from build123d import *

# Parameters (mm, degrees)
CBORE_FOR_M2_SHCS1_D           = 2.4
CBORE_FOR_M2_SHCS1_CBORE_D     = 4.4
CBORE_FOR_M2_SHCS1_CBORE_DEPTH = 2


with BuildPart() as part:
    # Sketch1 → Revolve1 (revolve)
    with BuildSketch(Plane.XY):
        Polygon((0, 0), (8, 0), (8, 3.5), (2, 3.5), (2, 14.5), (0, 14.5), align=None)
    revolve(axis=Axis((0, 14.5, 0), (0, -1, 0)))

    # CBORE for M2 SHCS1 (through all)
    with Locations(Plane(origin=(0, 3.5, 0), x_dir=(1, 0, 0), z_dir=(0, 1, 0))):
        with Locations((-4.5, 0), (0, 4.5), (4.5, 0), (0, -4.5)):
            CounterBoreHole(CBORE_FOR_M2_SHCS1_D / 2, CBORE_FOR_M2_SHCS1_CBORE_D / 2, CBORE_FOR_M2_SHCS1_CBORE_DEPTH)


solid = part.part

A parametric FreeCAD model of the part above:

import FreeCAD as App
import Part
import Sketcher


def add_polygon(sketch, points):
    """Adds a closed chain of lines whose ends are joined by coincident constraints."""
    first, n = sketch.GeometryCount, len(points)
    for a, b in zip(points, points[1:] + points[:1]):
        sketch.addGeometry(Part.LineSegment(App.Vector(*a, 0), App.Vector(*b, 0)), False)
    for i in range(n):
        sketch.addConstraint(Sketcher.Constraint("Coincident", first + i, 2, first + (i + 1) % n, 1))

doc = App.newDocument("Part")
params = doc.addObject("Spreadsheet::Sheet", "Params")
for row, (alias, value) in enumerate([
    ("sketch1_width", "8 mm"),
    ("sketch1_width2", "6 mm"),
    ("sketch1_height", "11 mm"),
    ("sketch1_height2", "3.5 mm"),
    ("revolution_angle", "360 deg"),
    ("sketch2_diameter", "2.4 mm"),
    ("hole_diameter", "2.4 mm"),
    ("hole_cbore_diameter", "4.4 mm"),
    ("hole_cbore_depth", "2 mm"),
], start=1):
    params.set(f"A{row}", alias)
    params.set(f"B{row}", "=" + value)
    params.setAlias(f"B{row}", alias)

body = doc.addObject("PartDesign::Body", "Body")

# Sketch on XY plane
sketch1 = body.newObject("Sketcher::SketchObject", "Sketch")
sketch1.AttachmentSupport = (doc.getObject("XY_Plane"), [""])
sketch1.MapMode = "FlatFace"
add_polygon(sketch1, [(0, 0), (8, 0), (8, 3.5), (2, 3.5), (2, 14.5), (0, 14.5)])  # lines 0-5
sketch1.addConstraint([
    Sketcher.Constraint("Horizontal", 0),
    Sketcher.Constraint("Vertical", 1),
    Sketcher.Constraint("Horizontal", 2),
    Sketcher.Constraint("Vertical", 3),
    Sketcher.Constraint("Horizontal", 4),
    Sketcher.Constraint("Vertical", 5),
    Sketcher.Constraint("Coincident", 5, 2, -1, 1),
    Sketcher.Constraint("DistanceX", 0, 1, 0, 2, 8.0),
    Sketcher.Constraint("DistanceX", 2, 2, 2, 1, 6.0),
    Sketcher.Constraint("DistanceY", 3, 1, 3, 2, 11.0),
    Sketcher.Constraint("DistanceY", 1, 1, 1, 2, 3.5),
])
sketch1.setExpression("Constraints[13]", "Params.sketch1_width")
sketch1.setExpression("Constraints[14]", "Params.sketch1_width2")
sketch1.setExpression("Constraints[15]", "Params.sketch1_height")
sketch1.setExpression("Constraints[16]", "Params.sketch1_height2")
revolution = body.newObject("PartDesign::Revolution", "Revolution")
revolution.Profile = sketch1
revolution.ReferenceAxis = (sketch1, ["V_Axis"])
revolution.setExpression("Angle", "Params.revolution_angle")

# Sketch on XZ plane
sketch2 = body.newObject("Sketcher::SketchObject", "Sketch001")
sketch2.AttachmentSupport = (doc.getObject("XZ_Plane"), [""])
sketch2.MapMode = "FlatFace"
sketch2.AttachmentOffset = App.Placement(App.Vector(0, 0, -3.5), App.Rotation())
sketch2.addGeometry([
    Part.Circle(App.Vector(-4.5, 0, 0), App.Vector(0, 0, 1), 1.2),
    Part.Circle(App.Vector(0, -4.5, 0), App.Vector(0, 0, 1), 1.2),
    Part.Circle(App.Vector(4.5, 0, 0), App.Vector(0, 0, 1), 1.2),
    Part.Circle(App.Vector(0, 4.5, 0), App.Vector(0, 0, 1), 1.2),
], False)
sketch2.addConstraint([
    Sketcher.Constraint("Equal", 0, 1),
    Sketcher.Constraint("Equal", 1, 2),
    Sketcher.Constraint("Equal", 2, 3),
    Sketcher.Constraint("Symmetric", 0, 3, 2, 3, -1, 1),
    Sketcher.Constraint("Symmetric", 1, 3, 3, 3, -1, 1),
    Sketcher.Constraint("PointOnObject", 0, 3, -1),
    Sketcher.Constraint("PointOnObject", 1, 3, -2),
    Sketcher.Constraint("Diameter", 0, 2.4),
    Sketcher.Constraint("DistanceX", 0, 3, 2, 3, 9.0),
    Sketcher.Constraint("DistanceY", 1, 3, 3, 3, 9.0),
])
sketch2.setExpression("Constraints[7]", "Params.sketch2_diameter")
doc.recompute()
hole = body.newObject("PartDesign::Hole", "Hole")
hole.Profile = sketch2
hole.ThreadType = "None"
hole.setExpression("Diameter", "Params.hole_diameter")
hole.DepthType = "ThroughAll"
hole.HoleCutType = "Counterbore"
hole.setExpression("HoleCutDiameter", "Params.hole_cbore_diameter")
hole.setExpression("HoleCutDepth", "Params.hole_cbore_depth")
hole.Reversed = True

doc.recompute()
